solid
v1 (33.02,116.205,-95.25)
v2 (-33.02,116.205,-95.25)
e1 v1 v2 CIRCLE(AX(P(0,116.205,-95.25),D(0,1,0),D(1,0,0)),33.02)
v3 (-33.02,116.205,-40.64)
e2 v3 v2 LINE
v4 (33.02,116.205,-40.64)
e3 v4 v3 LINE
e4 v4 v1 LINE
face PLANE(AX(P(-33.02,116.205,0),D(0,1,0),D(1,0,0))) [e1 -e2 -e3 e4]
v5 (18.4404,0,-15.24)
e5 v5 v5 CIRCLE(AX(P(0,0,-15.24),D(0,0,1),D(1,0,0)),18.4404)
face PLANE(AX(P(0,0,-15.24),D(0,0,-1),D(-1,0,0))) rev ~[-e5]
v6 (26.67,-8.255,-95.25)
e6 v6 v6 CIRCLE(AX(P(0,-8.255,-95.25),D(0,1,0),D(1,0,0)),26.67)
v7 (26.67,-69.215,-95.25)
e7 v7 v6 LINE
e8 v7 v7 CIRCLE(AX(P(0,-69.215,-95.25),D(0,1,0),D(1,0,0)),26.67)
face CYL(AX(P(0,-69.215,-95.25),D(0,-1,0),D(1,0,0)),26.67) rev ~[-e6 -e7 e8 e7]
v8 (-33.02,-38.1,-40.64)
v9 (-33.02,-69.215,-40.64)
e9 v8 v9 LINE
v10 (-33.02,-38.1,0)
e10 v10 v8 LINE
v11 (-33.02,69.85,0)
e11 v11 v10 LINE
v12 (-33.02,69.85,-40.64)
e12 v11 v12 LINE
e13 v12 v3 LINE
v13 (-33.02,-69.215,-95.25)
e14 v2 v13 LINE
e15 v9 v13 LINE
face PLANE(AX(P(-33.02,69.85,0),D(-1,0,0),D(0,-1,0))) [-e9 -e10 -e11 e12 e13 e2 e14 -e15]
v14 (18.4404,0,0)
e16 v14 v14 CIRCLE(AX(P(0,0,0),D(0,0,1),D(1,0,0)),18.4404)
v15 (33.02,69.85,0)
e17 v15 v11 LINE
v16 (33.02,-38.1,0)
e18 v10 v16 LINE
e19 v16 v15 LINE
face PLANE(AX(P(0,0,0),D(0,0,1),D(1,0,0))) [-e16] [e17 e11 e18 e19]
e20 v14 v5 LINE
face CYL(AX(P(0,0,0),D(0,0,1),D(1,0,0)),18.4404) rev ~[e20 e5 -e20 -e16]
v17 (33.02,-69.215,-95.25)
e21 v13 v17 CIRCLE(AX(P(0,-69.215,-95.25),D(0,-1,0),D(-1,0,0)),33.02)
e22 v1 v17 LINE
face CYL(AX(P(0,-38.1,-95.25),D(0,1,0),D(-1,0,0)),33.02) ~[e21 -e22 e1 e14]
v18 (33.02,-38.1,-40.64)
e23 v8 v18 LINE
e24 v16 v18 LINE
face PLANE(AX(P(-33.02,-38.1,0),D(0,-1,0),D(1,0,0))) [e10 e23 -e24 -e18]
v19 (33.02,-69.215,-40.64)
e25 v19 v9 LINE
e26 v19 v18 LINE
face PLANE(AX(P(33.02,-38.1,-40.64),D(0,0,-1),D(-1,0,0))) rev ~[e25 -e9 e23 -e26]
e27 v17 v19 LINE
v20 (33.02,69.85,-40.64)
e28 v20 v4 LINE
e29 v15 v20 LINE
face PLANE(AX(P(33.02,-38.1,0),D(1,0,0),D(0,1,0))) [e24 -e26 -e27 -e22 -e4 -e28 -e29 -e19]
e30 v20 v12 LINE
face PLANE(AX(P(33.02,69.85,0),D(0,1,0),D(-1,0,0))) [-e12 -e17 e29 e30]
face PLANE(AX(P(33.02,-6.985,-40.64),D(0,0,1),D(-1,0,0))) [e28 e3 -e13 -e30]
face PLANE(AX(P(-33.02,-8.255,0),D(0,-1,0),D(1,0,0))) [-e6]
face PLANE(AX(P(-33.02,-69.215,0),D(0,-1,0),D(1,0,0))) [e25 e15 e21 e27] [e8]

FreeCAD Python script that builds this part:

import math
import FreeCAD as App
import Part
import Sketcher
from FreeCAD import Vector
Q = App.Units.Quantity

doc = App.newDocument("Part")
body = doc.addObject("PartDesign::Body", "Body")

# Sketch on XY plane
sketch1 = body.newObject("Sketcher::SketchObject", "Sketch")
sketch1.AttachmentSupport = (doc.getObject("XY_Plane"), [""])
sketch1.MapMode = "FlatFace"
sketch1.addGeometry([
    Part.LineSegment(Vector(-33.02, 69.85, 0), Vector(-33.02, -38.1, 0)),  # 0
    Part.LineSegment(Vector(-33.02, -38.1, 0), Vector(33.02, -38.1, 0)),  # 1
    Part.LineSegment(Vector(33.02, -38.1, 0), Vector(33.02, 69.85, 0)),  # 2
    Part.LineSegment(Vector(33.02, 69.85, 0), Vector(-33.02, 69.85, 0)),  # 3
    Part.Circle(Vector(0, 0, 0), Vector(0, 0, 1), 18.4404),  # 4
], False)
sketch1.addConstraint([
    Sketcher.Constraint("Coincident", 0, 2, 1, 1),
    Sketcher.Constraint("Coincident", 1, 2, 2, 1),
    Sketcher.Constraint("Coincident", 2, 2, 3, 1),
    Sketcher.Constraint("Coincident", 3, 2, 0, 1),
    Sketcher.Constraint("Vertical", 0),
    Sketcher.Constraint("Horizontal", 1),
    Sketcher.Constraint("Vertical", 2),
    Sketcher.Constraint("Horizontal", 3),
    Sketcher.Constraint("Coincident", 4, 3, -1, 1),
    Sketcher.Constraint("Diameter", 4, Q("1.452 in")),
    Sketcher.Constraint("DistanceX", 1, 1, 1, 2, Q("2.6 in")),
    Sketcher.Constraint("DistanceY", 0, 2, 0, 1, Q("4.25 in")),
    Sketcher.Constraint("DistanceX", 0, 2, -1, 1, Q("1.3 in")),
    Sketcher.Constraint("DistanceY", 0, 2, -1, 1, Q("1.5 in")),
])
pad1 = body.newObject("PartDesign::Pad", "Pad")
pad1.Profile = sketch1
pad1.Length = Q("1.6 in")
pad1.Reversed = True

# Sketch on XY plane
sketch2 = body.newObject("Sketcher::SketchObject", "Sketch001")
sketch2.AttachmentSupport = (doc.getObject("XY_Plane"), [""])
sketch2.MapMode = "FlatFace"
sketch2.AttachmentOffset = App.Placement(Vector(0, 0, -1.6 * 25.4), App.Rotation())
sketch2.addGeometry(Part.Circle(Vector(0, 0, 0), Vector(0, 0, 1), 25.1006), False)
sketch2.addConstraint([
    Sketcher.Constraint("Coincident", 0, 3, -1, 1),
    Sketcher.Constraint("Diameter", 0, Q("50.2012 mm")),
])
pad2 = body.newObject("PartDesign::Pad", "Pad001")
pad2.Profile = sketch2
pad2.Length = Q("1 in")

# Sketch on XZ plane
sketch3 = body.newObject("Sketcher::SketchObject", "Sketch002")
sketch3.AttachmentSupport = (doc.getObject("XZ_Plane"), [""])
sketch3.MapMode = "FlatFace"
sketch3.AttachmentOffset = App.Placement(Vector(0, 0, 1.5 * 25.4), App.Rotation())
sketch3.addGeometry([
    Part.LineSegment(Vector(33.02, -40.64, 0), Vector(-33.02, -40.64, 0)),
    Part.LineSegment(Vector(-33.02, -40.64, 0), Vector(-33.02, -95.25, 0)),
    Part.ArcOfCircle(Part.Circle(Vector(0, -95.25, 0), Vector(0, 0, 1), 33.02), math.radians(180), math.radians(360)),
    Part.LineSegment(Vector(33.02, -95.25, 0), Vector(33.02, -40.64, 0)),
], False)
sketch3.addConstraint([
    Sketcher.Constraint("Coincident", 0, 2, 1, 1),
    Sketcher.Constraint("Tangent", 1, 2, 2, 1),
    Sketcher.Constraint("Tangent", 2, 2, 3, 1),
    Sketcher.Constraint("Coincident", 3, 2, 0, 1),
    Sketcher.Constraint("Horizontal", 0),
    Sketcher.Constraint("Vertical", 1),
    Sketcher.Constraint("Vertical", 3),
    Sketcher.Constraint("PointOnObject", 2, 3, -2),
    Sketcher.Constraint("DistanceY", 1, 2, 1, 1, Q("2.15 in")),
    Sketcher.Constraint("Radius", 2, Q("1.3 in")),
    Sketcher.Constraint("DistanceY", 0, 2, -1, 1, Q("1.6 in")),
])
pad3 = body.newObject("PartDesign::Pad", "Pad002")
pad3.Profile = sketch3
pad3.Length = Q("2.45 in")
pad3.Midplane = True

# Sketch on XZ plane
sketch4 = body.newObject("Sketcher::SketchObject", "Sketch003")
sketch4.AttachmentSupport = (doc.getObject("XZ_Plane"), [""])
sketch4.MapMode = "FlatFace"
sketch4.AttachmentOffset = App.Placement(Vector(0, 0, 0.275 * 25.4), App.Rotation())
sketch4.addGeometry([
    Part.ArcOfCircle(Part.Circle(Vector(0, -95.25, 0), Vector(0, 0, 1), 33.02), math.radians(180), math.radians(360)),
    Part.LineSegment(Vector(-33.02, -95.25, 0), Vector(-33.02, -40.64, 0)),
    Part.LineSegment(Vector(-33.02, -40.64, 0), Vector(33.02, -40.64, 0)),
    Part.LineSegment(Vector(33.02, -40.64, 0), Vector(33.02, -95.25, 0)),
], False)
sketch4.addConstraint([
    Sketcher.Constraint("Tangent", 0, 1, 1, 1),
    Sketcher.Constraint("Coincident", 1, 2, 2, 1),
    Sketcher.Constraint("Coincident", 2, 2, 3, 1),
    Sketcher.Constraint("Tangent", 3, 2, 0, 2),
    Sketcher.Constraint("Vertical", 1),
    Sketcher.Constraint("Horizontal", 2),
    Sketcher.Constraint("Vertical", 3),
    Sketcher.Constraint("PointOnObject", 0, 3, -2),
    Sketcher.Constraint("Radius", 0, Q("1.3 in")),
    Sketcher.Constraint("DistanceY", 1, 1, 1, 2, Q("2.15 in")),
    Sketcher.Constraint("DistanceY", 1, 2, -1, 1, Q("1.6 in")),
])
pad4 = body.newObject("PartDesign::Pad", "Pad003")
pad4.Profile = sketch4
pad4.Length = Q("4.85 in")
pad4.Reversed = True

# Sketch on XZ plane
sketch5 = body.newObject("Sketcher::SketchObject", "Sketch004")
sketch5.AttachmentSupport = (doc.getObject("XZ_Plane"), [""])
sketch5.MapMode = "FlatFace"
sketch5.AttachmentOffset = App.Placement(Vector(0, 0, 2.725 * 25.4), App.Rotation())
sketch5.addGeometry(Part.Circle(Vector(0, -95.25, 0), Vector(0, 0, 1), 26.67), False)
sketch5.addConstraint([
    Sketcher.Constraint("PointOnObject", 0, 3, -2),
    Sketcher.Constraint("Diameter", 0, Q("2.1 in")),
    Sketcher.Constraint("DistanceY", 0, 3, -1, 1, Q("3.75 in")),
])
pocket1 = body.newObject("PartDesign::Pocket", "Pocket")
pocket1.Profile = sketch5
pocket1.Length = Q("2.4 in")

doc.recompute()
